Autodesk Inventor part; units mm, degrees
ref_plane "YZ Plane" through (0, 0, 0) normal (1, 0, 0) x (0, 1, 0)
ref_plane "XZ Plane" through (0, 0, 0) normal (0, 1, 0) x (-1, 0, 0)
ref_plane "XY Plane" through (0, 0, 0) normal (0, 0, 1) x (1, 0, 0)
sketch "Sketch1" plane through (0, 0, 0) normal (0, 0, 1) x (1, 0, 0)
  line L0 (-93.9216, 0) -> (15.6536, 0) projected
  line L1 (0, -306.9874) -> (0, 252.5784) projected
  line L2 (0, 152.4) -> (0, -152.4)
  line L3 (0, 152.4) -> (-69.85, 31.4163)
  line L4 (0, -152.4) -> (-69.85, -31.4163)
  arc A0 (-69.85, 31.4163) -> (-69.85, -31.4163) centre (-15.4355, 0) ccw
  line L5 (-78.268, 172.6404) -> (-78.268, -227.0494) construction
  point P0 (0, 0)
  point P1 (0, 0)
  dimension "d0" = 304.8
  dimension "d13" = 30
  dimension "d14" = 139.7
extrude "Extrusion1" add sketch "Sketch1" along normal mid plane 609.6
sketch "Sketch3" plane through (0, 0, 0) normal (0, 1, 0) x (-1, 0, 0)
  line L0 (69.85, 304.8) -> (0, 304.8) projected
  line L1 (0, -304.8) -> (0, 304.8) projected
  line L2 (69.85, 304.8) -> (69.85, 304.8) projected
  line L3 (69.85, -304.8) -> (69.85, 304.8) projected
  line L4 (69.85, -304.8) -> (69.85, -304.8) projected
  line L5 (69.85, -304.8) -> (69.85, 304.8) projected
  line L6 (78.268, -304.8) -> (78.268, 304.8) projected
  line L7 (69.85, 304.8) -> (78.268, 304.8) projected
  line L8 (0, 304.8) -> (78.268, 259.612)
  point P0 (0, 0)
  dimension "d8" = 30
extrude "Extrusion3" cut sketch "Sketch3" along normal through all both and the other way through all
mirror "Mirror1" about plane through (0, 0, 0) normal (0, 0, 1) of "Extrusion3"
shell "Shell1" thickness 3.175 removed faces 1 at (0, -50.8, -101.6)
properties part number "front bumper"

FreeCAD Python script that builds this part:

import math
import FreeCAD as App
import Part
import Sketcher

V = App.Vector
Q = App.Units.Quantity


def faces_at(feature, points):
    """Names of the faces that lie closest to the given points."""
    faces = feature.Shape.Faces
    near = lambda p: min(range(len(faces)), key=lambda i: faces[i].distToShape(Part.Vertex(*p))[0])
    return sorted({f"Face{near(p) + 1}" for p in points})

doc = App.newDocument("Part")
body = doc.addObject("PartDesign::Body", "Body")

# Sketch on XY plane
sketch1 = body.newObject("Sketcher::SketchObject", "Sketch")
sketch1.AttachmentSupport = (doc.getObject("XY_Plane"), [""])
sketch1.MapMode = "FlatFace"
sketch1.addGeometry([
    Part.ArcOfCircle(Part.Circle(V(-15.4355, 0, 0), V(0, 0, 1), 62.832489), math.radians(149.999942), math.radians(210.000058)),
    Part.LineSegment(V(-69.85, -31.4163, 0), V(0, -152.4, 0)),
    Part.LineSegment(V(0, -152.4, 0), V(0, 152.4, 0)),
    Part.LineSegment(V(0, 152.4, 0), V(-69.85, 31.4163, 0)),
], False)
sketch1.addConstraint([
    Sketcher.Constraint("Tangent", 0, 2, 1, 1),
    Sketcher.Constraint("Coincident", 1, 2, 2, 1),
    Sketcher.Constraint("Coincident", 2, 2, 3, 1),
    Sketcher.Constraint("Tangent", 3, 2, 0, 1),
    Sketcher.Constraint("Vertical", 2),
    Sketcher.Constraint("Symmetric", 1, 2, 2, 2, -1, 1),
    Sketcher.Constraint("PointOnObject", 0, 3, -1),
    Sketcher.Constraint("DistanceY", 2, 1, 2, 2, Q("12 in")),
    Sketcher.Constraint("Distance", 1, Q("5.5 in")),
    Sketcher.Constraint("Angle", 1, Q("-60 deg")),
])
pad1 = body.newObject("PartDesign::Pad", "Pad")
pad1.Profile = sketch1
pad1.Length = Q("24 in")
pad1.Midplane = True

# Sketch on XZ plane
sketch2 = body.newObject("Sketcher::SketchObject", "Sketch001")
sketch2.AttachmentSupport = (doc.getObject("XZ_Plane"), [""])
sketch2.MapMode = "FlatFace"
sketch2.addGeometry([
    Part.LineSegment(V(0, 304.8, 0), V(-78.268, 259.612, 0)),
    Part.LineSegment(V(-78.268, 259.612, 0), V(-78.268, 304.8, 0)),
    Part.LineSegment(V(-78.268, 304.8, 0), V(0, 304.8, 0)),
], False)
sketch2.addConstraint([
    Sketcher.Constraint("Coincident", 0, 2, 1, 1),
    Sketcher.Constraint("Coincident", 1, 2, 2, 1),
    Sketcher.Constraint("Coincident", 2, 2, 0, 1),
    Sketcher.Constraint("Vertical", 1),
    Sketcher.Constraint("Horizontal", 2),
    Sketcher.Constraint("PointOnObject", 2, 2, -2),
    Sketcher.Constraint("DistanceY", -1, 1, 1, 2, Q("12 in")),
    Sketcher.Constraint("Angle", 0, Q("-150 deg")),
    Sketcher.Constraint("DistanceX", 2, 1, 2, 2, 78.268),
])
pocket1 = body.newObject("PartDesign::Pocket", "Pocket")
pocket1.Profile = sketch2
pocket1.Type = "ThroughAll"
pocket1.Midplane = True
doc.recompute()

mirrored = body.newObject("PartDesign::Mirrored", "Mirrored")
mirrored.Originals = [pocket1]
mirrored.MirrorPlane = (doc.getObject("XY_Plane"), [""])
body.Tip = mirrored
doc.recompute()

thickness = body.newObject("PartDesign::Thickness", "Thickness")
thickness.Base = (mirrored, faces_at(mirrored, [(0, -50.8, -101.6)]))
thickness.Value = Q("0.125 in")
thickness.Reversed = True
thickness.Join = "Intersection"

doc.recompute()
